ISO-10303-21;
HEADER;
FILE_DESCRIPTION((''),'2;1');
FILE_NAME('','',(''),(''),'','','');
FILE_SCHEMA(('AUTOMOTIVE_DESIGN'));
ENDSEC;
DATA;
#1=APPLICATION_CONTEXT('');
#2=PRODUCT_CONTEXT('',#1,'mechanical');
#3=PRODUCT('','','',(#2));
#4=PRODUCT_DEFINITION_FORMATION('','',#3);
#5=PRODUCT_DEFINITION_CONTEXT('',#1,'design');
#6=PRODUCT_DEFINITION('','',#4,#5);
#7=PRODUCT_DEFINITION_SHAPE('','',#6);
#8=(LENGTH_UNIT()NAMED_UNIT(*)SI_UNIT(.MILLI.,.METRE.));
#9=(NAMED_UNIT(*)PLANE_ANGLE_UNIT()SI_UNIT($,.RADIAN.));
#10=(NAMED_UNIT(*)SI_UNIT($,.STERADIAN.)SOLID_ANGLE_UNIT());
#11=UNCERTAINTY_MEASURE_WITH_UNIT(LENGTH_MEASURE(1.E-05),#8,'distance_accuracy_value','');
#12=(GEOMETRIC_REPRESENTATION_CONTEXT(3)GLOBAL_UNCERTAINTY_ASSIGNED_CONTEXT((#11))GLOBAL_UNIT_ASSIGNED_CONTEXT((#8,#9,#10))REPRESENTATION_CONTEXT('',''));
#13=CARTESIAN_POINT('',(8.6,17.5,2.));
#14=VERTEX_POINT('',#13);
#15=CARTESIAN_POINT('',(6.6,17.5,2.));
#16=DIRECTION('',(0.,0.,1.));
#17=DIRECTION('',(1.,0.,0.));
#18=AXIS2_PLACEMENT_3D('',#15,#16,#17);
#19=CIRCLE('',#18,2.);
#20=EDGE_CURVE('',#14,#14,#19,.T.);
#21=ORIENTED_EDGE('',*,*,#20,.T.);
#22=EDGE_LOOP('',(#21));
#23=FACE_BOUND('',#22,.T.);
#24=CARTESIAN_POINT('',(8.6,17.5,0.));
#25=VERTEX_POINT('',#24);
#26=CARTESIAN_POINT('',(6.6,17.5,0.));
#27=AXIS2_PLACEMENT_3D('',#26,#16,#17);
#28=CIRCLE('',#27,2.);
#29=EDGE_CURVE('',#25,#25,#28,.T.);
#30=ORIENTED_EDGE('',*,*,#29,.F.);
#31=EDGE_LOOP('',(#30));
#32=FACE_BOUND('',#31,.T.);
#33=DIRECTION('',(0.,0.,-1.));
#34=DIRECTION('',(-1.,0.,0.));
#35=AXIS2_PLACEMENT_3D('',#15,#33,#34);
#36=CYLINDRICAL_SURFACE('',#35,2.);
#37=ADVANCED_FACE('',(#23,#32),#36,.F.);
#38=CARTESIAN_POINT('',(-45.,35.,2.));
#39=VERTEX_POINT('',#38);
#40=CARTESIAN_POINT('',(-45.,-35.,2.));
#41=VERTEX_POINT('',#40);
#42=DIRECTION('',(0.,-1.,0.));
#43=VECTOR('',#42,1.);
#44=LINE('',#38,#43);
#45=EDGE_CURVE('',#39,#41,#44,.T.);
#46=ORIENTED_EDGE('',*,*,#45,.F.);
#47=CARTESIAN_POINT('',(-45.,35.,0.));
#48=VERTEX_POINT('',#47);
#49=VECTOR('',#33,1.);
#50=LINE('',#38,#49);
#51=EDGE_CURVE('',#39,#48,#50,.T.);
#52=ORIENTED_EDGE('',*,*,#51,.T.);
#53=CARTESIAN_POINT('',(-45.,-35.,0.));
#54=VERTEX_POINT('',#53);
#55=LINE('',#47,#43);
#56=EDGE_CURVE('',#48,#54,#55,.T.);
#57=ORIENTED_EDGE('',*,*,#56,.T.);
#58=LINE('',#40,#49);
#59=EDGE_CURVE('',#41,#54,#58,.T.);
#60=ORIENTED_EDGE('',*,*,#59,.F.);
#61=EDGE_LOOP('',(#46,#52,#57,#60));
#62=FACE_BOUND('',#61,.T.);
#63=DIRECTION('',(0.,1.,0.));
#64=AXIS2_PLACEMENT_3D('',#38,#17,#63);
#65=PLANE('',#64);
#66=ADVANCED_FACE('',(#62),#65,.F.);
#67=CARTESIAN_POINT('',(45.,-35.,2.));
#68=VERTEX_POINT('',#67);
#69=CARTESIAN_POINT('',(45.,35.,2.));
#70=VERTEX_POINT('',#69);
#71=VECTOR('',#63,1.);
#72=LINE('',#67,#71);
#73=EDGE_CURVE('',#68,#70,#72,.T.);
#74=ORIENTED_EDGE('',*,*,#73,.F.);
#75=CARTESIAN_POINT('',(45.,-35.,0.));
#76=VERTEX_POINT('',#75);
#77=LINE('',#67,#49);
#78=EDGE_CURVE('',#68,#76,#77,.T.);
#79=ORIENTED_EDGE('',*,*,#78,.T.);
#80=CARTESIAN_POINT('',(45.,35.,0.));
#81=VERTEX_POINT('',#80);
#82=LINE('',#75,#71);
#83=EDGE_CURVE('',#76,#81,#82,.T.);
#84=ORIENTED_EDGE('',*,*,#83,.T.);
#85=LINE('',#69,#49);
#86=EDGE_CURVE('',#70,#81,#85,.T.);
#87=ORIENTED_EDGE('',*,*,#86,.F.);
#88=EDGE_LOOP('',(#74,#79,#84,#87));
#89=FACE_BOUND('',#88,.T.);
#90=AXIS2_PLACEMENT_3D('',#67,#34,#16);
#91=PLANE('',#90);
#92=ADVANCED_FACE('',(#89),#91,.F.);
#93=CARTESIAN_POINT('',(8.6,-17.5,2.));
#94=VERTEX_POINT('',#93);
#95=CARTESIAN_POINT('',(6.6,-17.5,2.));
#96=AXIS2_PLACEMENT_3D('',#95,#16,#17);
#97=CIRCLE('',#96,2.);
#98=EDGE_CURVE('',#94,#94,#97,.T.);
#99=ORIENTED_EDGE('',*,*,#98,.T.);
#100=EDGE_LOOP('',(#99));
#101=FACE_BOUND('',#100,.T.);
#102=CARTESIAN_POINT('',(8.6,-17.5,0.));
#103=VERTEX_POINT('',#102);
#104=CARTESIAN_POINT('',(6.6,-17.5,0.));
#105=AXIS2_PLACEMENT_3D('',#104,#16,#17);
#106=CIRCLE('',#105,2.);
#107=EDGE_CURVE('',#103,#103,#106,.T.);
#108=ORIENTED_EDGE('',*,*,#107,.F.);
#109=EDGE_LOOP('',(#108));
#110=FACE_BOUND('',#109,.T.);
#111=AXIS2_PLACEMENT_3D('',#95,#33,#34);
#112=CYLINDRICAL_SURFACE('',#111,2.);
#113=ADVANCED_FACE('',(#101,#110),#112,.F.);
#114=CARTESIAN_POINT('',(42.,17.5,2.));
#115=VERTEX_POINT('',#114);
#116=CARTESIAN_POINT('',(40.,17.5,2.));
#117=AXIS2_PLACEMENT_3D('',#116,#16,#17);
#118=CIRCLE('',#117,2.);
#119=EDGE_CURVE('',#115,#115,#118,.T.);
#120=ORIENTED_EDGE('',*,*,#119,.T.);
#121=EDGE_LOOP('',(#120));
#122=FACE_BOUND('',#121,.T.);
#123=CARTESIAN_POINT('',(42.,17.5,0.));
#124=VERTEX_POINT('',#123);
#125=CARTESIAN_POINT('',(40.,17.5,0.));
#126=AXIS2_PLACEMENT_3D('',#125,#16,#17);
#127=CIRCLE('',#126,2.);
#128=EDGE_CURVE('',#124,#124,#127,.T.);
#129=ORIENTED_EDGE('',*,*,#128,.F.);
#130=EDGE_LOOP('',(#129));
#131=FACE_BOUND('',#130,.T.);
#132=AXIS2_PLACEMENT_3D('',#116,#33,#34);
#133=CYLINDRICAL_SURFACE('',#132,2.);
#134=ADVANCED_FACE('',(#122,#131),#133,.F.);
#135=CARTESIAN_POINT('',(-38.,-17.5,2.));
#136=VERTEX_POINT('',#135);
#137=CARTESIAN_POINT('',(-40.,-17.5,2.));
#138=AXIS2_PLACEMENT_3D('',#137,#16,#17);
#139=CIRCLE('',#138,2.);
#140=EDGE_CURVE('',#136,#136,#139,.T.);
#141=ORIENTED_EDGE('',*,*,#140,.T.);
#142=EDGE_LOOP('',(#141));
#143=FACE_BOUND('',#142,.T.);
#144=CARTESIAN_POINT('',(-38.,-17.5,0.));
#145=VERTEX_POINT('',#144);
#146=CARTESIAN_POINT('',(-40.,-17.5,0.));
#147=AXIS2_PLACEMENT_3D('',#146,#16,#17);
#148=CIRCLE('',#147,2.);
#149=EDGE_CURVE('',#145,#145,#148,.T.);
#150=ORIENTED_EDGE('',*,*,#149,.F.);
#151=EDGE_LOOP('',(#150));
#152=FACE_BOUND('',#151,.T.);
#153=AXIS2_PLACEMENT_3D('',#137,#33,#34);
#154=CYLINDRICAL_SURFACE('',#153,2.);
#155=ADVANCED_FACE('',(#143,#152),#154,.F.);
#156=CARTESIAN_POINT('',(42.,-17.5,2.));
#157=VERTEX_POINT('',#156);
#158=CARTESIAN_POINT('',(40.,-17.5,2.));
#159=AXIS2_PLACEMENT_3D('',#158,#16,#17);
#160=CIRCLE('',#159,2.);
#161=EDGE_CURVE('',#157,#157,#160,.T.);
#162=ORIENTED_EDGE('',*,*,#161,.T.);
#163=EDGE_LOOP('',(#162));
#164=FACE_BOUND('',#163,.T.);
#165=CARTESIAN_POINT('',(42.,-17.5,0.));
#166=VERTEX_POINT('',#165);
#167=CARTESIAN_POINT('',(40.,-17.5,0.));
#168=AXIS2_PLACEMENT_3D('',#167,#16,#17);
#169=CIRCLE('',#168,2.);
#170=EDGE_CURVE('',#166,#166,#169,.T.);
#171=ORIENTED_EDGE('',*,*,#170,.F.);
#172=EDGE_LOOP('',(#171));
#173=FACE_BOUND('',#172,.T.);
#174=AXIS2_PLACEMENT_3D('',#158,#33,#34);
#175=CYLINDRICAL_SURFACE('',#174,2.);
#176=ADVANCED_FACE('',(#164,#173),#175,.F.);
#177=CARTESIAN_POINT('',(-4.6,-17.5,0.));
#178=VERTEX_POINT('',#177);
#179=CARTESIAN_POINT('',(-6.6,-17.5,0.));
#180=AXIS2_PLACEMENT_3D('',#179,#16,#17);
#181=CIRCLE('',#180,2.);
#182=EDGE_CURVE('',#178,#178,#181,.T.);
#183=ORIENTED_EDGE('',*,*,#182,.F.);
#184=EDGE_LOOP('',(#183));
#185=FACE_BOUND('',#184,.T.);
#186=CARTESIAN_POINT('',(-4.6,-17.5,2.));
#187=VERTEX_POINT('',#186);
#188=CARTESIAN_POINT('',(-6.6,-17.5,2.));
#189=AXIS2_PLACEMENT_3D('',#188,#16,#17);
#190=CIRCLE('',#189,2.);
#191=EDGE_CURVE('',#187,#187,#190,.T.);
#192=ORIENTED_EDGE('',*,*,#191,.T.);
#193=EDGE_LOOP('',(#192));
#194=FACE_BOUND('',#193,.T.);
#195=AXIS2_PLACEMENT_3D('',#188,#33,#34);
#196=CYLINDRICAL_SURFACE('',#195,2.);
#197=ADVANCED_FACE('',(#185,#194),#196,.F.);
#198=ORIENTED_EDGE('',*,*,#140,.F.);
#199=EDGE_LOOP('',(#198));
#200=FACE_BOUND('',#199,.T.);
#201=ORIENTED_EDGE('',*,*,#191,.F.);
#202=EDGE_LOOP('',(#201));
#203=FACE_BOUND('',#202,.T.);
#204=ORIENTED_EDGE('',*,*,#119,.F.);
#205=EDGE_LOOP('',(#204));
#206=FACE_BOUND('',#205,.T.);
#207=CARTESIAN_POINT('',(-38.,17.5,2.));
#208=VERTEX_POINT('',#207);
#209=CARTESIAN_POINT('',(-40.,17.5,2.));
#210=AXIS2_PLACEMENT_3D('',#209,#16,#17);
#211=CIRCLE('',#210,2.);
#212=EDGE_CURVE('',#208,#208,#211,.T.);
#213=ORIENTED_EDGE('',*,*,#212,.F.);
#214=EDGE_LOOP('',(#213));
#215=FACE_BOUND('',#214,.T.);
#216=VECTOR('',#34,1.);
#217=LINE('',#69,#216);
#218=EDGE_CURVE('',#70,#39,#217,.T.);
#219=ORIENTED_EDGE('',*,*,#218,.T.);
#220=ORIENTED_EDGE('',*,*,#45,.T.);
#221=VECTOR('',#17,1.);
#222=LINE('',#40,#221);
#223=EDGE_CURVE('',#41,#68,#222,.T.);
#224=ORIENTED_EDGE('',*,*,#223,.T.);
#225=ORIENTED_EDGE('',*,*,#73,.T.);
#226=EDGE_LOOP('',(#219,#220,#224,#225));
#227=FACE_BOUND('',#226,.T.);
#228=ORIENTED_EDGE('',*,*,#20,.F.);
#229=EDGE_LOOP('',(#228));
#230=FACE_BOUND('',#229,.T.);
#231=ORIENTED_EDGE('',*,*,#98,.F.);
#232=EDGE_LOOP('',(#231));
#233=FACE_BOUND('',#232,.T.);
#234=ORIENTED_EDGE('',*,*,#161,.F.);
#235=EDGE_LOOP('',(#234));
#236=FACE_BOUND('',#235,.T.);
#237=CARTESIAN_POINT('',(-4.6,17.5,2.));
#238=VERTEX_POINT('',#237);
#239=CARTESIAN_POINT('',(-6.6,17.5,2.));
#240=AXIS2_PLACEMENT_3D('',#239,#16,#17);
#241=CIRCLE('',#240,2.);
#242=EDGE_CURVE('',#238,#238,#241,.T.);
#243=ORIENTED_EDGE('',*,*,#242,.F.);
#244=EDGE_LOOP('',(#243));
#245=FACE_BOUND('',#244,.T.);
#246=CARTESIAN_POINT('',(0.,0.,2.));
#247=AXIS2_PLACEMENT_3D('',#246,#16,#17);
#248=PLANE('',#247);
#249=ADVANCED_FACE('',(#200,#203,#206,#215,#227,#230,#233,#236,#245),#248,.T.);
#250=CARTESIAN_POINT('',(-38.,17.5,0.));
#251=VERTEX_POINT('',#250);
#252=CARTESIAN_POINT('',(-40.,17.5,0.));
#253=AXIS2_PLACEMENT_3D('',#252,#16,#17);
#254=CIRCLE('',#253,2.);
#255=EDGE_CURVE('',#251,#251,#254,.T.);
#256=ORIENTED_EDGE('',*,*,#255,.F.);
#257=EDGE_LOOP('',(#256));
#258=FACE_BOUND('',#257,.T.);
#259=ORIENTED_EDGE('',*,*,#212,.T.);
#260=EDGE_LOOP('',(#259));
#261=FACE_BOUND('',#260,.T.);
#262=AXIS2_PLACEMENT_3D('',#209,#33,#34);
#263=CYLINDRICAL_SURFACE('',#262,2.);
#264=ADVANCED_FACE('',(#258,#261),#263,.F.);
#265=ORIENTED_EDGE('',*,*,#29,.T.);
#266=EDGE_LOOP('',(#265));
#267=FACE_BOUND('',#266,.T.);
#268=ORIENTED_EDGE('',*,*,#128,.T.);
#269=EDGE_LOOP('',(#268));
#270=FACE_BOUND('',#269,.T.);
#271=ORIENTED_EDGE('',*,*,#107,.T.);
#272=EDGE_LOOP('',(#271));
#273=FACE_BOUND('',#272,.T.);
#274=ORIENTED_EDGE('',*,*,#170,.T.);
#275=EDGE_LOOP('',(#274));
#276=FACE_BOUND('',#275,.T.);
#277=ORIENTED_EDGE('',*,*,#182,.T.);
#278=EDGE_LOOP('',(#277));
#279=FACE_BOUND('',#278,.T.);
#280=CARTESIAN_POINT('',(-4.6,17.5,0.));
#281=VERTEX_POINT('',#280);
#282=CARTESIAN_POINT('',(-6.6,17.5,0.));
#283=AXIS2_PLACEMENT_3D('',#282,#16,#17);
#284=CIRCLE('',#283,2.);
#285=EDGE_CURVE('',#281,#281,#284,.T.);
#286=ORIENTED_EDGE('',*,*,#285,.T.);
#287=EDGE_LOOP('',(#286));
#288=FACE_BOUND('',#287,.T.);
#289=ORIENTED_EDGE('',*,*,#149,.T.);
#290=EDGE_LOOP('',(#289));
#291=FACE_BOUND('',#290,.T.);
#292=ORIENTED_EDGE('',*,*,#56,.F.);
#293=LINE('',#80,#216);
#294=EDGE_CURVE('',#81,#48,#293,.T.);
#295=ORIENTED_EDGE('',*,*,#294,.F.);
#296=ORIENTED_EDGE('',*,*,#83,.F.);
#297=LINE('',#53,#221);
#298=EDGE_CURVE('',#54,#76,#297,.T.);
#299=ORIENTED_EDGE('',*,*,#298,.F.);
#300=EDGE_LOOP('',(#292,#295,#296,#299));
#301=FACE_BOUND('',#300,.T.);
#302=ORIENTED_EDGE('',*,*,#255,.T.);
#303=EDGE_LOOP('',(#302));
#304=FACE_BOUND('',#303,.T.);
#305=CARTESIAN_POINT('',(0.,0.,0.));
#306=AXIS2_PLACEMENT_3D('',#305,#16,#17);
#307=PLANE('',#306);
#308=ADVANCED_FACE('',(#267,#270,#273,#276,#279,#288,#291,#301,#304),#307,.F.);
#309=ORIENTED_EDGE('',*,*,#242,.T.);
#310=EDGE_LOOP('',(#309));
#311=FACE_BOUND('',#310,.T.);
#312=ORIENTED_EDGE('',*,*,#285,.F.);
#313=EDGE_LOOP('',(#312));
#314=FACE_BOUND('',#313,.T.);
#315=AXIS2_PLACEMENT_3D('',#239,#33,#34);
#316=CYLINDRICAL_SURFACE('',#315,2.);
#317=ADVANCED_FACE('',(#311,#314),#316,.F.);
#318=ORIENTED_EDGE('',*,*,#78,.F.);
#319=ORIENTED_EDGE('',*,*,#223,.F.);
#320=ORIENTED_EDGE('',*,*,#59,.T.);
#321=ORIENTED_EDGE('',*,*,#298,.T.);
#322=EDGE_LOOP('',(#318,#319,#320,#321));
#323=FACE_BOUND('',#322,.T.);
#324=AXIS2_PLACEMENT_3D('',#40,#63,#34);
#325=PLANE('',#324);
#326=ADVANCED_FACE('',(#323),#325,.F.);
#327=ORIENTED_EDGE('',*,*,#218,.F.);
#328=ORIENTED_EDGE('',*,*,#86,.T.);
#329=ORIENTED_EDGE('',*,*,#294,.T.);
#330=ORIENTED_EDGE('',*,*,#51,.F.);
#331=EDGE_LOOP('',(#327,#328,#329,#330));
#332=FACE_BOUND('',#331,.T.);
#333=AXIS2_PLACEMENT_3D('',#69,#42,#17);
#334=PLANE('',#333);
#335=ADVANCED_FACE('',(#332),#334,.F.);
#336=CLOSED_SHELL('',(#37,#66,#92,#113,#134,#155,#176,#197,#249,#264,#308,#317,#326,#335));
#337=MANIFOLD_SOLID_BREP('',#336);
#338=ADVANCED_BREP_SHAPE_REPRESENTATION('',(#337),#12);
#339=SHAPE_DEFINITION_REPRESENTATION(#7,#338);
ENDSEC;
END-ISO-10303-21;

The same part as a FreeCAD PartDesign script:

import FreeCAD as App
import Part
import Sketcher

V = App.Vector


def add_polygon(sketch, points):
    """Adds a closed chain of lines whose ends are joined by coincident constraints."""
    first, n = sketch.GeometryCount, len(points)
    for a, b in zip(points, points[1:] + points[:1]):
        sketch.addGeometry(Part.LineSegment(App.Vector(*a, 0), App.Vector(*b, 0)), False)
    for i in range(n):
        sketch.addConstraint(Sketcher.Constraint("Coincident", first + i, 2, first + (i + 1) % n, 1))

doc = App.newDocument("Part")
body = doc.addObject("PartDesign::Body", "Body")

sketch1 = doc.addObject("Sketcher::SketchObject", "Sketch")
body.addObject(sketch1)
sketch1.AttachmentSupport = (doc.XY_Plane, [""])
sketch1.MapMode = "FlatFace"
add_polygon(sketch1, [(-45, 35), (-45, -35), (45, -35), (45, 35)])
sketch1.addGeometry(Part.Circle(V(-40, -17.5, 0), V(0, 0, 1), 2), False)
sketch1.addGeometry(Part.Circle(V(-6.6, -17.5, 0), V(0, 0, 1), 2), False)
sketch1.addGeometry(Part.Circle(V(6.6, -17.5, 0), V(0, 0, 1), 2), False)
sketch1.addGeometry(Part.Circle(V(40, -17.5, 0), V(0, 0, 1), 2), False)
sketch1.addGeometry(Part.Circle(V(-40, 17.5, 0), V(0, 0, 1), 2), False)
sketch1.addGeometry(Part.Circle(V(-6.6, 17.5, 0), V(0, 0, 1), 2), False)
sketch1.addGeometry(Part.Circle(V(6.6, 17.5, 0), V(0, 0, 1), 2), False)
sketch1.addGeometry(Part.Circle(V(40, 17.5, 0), V(0, 0, 1), 2), False)
sketch1.addConstraint([
    Sketcher.Constraint("Vertical", 0),
    Sketcher.Constraint("Horizontal", 1),
    Sketcher.Constraint("Vertical", 2),
    Sketcher.Constraint("Horizontal", 3),
    Sketcher.Constraint("Equal", 4, 5),
    Sketcher.Constraint("Equal", 5, 6),
    Sketcher.Constraint("Equal", 6, 7),
    Sketcher.Constraint("Equal", 7, 8),
    Sketcher.Constraint("Equal", 8, 9),
    Sketcher.Constraint("Equal", 9, 10),
    Sketcher.Constraint("Equal", 10, 11),
    Sketcher.Constraint("Symmetric", 7, 3, 8, 3, -1, 1),
    Sketcher.Constraint("Symmetric", 6, 3, 9, 3, -1, 1),
    Sketcher.Constraint("Symmetric", 5, 3, 10, 3, -1, 1),
    Sketcher.Constraint("Symmetric", 4, 3, 11, 3, -1, 1),
    Sketcher.Constraint("Symmetric", 0, 2, 2, 2, -1, 1),
    Sketcher.Constraint("Symmetric", 5, 3, 6, 3, -2),
    Sketcher.Constraint("Symmetric", 4, 3, 7, 3, -2),
    Sketcher.Constraint("Horizontal", 4, 3, 5, 3),
    Sketcher.Constraint("Diameter", 4, 4.0),
    Sketcher.Constraint("DistanceX", 1, 1, 1, 2, 90.0),
    Sketcher.Constraint("DistanceY", 0, 2, 0, 1, 70.0),
    Sketcher.Constraint("DistanceX", 4, 3, -1, 1, 40.0),
    Sketcher.Constraint("DistanceY", 4, 3, 8, 3, 35.0),
    Sketcher.Constraint("DistanceX", 5, 3, -1, 1, 6.6),
])
pad1 = doc.addObject("PartDesign::Pad", "Pad")
body.addObject(pad1)
pad1.Profile = sketch1
pad1.Length = 2

doc.recompute()
